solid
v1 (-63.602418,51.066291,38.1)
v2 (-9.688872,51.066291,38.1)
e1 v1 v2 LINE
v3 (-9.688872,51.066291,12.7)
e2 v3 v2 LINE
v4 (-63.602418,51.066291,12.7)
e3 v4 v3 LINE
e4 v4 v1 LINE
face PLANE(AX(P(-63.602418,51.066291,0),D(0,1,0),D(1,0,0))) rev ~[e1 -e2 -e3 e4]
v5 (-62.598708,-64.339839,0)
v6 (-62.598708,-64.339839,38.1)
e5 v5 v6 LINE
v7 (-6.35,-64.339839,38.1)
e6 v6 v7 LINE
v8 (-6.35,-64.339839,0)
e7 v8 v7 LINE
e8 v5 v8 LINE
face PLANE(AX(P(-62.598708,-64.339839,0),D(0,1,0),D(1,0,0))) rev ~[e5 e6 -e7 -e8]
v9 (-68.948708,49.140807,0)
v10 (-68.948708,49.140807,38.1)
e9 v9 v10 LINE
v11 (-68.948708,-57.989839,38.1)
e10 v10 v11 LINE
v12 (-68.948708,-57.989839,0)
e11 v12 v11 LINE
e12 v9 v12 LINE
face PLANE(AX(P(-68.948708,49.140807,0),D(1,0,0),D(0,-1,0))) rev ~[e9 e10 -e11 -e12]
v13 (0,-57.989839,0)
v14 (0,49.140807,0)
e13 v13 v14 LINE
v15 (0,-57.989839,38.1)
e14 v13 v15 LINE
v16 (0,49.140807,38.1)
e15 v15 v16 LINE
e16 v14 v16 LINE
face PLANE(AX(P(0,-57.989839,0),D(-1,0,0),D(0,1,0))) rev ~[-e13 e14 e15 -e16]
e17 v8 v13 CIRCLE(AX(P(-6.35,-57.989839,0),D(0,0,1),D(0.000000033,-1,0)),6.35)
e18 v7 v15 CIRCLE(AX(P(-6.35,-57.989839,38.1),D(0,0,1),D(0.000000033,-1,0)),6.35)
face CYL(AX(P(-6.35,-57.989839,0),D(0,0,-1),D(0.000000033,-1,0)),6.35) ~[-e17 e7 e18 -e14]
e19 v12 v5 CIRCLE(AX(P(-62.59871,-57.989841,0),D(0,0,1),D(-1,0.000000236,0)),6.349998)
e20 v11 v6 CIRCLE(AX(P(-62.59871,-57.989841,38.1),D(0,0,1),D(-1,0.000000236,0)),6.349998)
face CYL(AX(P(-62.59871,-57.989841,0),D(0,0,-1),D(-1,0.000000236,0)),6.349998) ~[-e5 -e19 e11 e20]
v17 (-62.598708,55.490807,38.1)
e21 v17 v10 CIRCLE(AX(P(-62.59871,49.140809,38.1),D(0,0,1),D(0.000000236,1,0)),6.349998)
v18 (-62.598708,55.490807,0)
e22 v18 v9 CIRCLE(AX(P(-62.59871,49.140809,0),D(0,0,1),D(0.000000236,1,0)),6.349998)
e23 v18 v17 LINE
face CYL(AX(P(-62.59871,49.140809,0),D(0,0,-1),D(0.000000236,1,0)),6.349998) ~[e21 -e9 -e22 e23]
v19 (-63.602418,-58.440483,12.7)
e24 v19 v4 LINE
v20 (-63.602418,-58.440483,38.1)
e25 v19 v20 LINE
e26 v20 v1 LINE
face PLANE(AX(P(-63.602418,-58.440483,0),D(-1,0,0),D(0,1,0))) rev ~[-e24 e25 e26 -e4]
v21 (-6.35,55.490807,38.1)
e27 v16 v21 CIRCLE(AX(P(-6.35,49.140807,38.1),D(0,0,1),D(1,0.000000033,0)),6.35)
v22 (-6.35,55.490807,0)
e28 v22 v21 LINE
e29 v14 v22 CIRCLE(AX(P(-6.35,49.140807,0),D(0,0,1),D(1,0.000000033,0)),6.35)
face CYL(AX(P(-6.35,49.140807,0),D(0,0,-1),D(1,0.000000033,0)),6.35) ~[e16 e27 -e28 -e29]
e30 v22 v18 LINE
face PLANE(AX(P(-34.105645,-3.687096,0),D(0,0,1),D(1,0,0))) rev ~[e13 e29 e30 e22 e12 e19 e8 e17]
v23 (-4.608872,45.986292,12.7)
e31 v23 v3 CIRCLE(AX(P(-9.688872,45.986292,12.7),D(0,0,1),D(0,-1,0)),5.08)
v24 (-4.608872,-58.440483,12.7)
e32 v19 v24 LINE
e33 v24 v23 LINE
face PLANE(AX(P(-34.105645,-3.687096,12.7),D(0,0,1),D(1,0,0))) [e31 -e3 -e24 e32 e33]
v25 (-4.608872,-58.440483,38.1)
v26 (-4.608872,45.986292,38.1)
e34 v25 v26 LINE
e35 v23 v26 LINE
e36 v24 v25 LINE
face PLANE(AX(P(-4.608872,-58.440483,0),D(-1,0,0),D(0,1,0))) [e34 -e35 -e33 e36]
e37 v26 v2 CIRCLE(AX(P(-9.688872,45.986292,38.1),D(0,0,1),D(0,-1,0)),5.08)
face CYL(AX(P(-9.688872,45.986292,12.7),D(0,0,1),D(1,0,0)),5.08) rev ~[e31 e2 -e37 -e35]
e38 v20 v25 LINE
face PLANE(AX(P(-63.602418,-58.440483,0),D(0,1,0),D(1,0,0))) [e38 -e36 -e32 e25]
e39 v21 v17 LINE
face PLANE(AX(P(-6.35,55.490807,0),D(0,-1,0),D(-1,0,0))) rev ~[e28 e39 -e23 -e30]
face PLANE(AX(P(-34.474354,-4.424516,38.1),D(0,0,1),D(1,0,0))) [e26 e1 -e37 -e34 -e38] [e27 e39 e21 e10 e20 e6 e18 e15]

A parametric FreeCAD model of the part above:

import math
import FreeCAD as App
import Part
import Sketcher
Q = App.Units.Quantity


def edges_at(feature, points):
    """Names of the edges that pass closest to the given points."""
    edges = feature.Shape.Edges
    near = lambda p: min(range(len(edges)), key=lambda i: edges[i].distToShape(Part.Vertex(*p))[0])
    return sorted({f"Edge{near(p) + 1}" for p in points})

doc = App.newDocument("Part")
body = doc.addObject("PartDesign::Body", "Body")

sketch1 = doc.addObject("Sketcher::SketchObject", "Sketch")
body.addObject(sketch1)
sketch1.AttachmentSupport = (doc.XY_Plane, [""])
sketch1.MapMode = "FlatFace"
sketch1.addGeometry([
    Part.LineSegment(App.Vector(-62.598708, -64.339839, 0), App.Vector(-6.35, -64.339839, 0)),
    Part.ArcOfCircle(Part.Circle(App.Vector(-6.35, -57.989839, 0), App.Vector(0, 0, 1), 6.35), math.radians(-89.999998), math.radians(-0.000002)),
    Part.LineSegment(App.Vector(0, -57.989839, 0), App.Vector(0, 49.140807, 0)),
    Part.ArcOfCircle(Part.Circle(App.Vector(-6.35, 49.140807, 0), App.Vector(0, 0, 1), 6.35), math.radians(0.000002), math.radians(89.999998)),
    Part.LineSegment(App.Vector(-6.35, 55.490807, 0), App.Vector(-62.598708, 55.490807, 0)),
    Part.ArcOfCircle(Part.Circle(App.Vector(-62.598709, 49.140808, 0), App.Vector(0, 0, 1), 6.349998), math.radians(89.999986), math.radians(180.000014)),
    Part.LineSegment(App.Vector(-68.948708, 49.140807, 0), App.Vector(-68.948708, -57.989839, 0)),
    Part.ArcOfCircle(Part.Circle(App.Vector(-62.598709, -57.98984, 0), App.Vector(0, 0, 1), 6.349998), math.radians(179.999986), math.radians(270.000014)),
    Part.LineSegment(App.Vector(-4.608872, -58.440483, 0), App.Vector(-63.602418, -58.440483, 0)),
    Part.LineSegment(App.Vector(-63.602418, -58.440483, 0), App.Vector(-63.602418, 51.066291, 0)),
    Part.LineSegment(App.Vector(-63.602418, 51.066291, 0), App.Vector(-4.608872, 51.066291, 0)),
    Part.LineSegment(App.Vector(-4.608872, 51.066291, 0), App.Vector(-4.608872, -58.440483, 0)),
], False)
sketch1.addConstraint([
    Sketcher.Constraint("Tangent", 0, 2, 1, 1),
    Sketcher.Constraint("Tangent", 1, 2, 2, 1),
    Sketcher.Constraint("Tangent", 2, 2, 3, 1),
    Sketcher.Constraint("Tangent", 3, 2, 4, 1),
    Sketcher.Constraint("Tangent", 4, 2, 5, 1),
    Sketcher.Constraint("Tangent", 5, 2, 6, 1),
    Sketcher.Constraint("Tangent", 6, 2, 7, 1),
    Sketcher.Constraint("Tangent", 7, 2, 0, 1),
    Sketcher.Constraint("Coincident", 8, 2, 9, 1),
    Sketcher.Constraint("Coincident", 9, 2, 10, 1),
    Sketcher.Constraint("Coincident", 10, 2, 11, 1),
    Sketcher.Constraint("Coincident", 11, 2, 8, 1),
    Sketcher.Constraint("Horizontal", 0),
    Sketcher.Constraint("Vertical", 2),
    Sketcher.Constraint("Horizontal", 4),
    Sketcher.Constraint("Vertical", 6),
    Sketcher.Constraint("Horizontal", 8),
    Sketcher.Constraint("Vertical", 9),
    Sketcher.Constraint("Horizontal", 10),
    Sketcher.Constraint("Vertical", 11),
    Sketcher.Constraint("Equal", 1, 3),
    Sketcher.Constraint("Equal", 3, 5),
    Sketcher.Constraint("Equal", 5, 7),
    Sketcher.Constraint("PointOnObject", 1, 2, -2),
    Sketcher.Constraint("Radius", 1, Q("0.25 in")),
    Sketcher.Constraint("DistanceX", 0, 1, 0, 2, 56.248708),
    Sketcher.Constraint("DistanceX", 8, 2, 8, 1, 58.993546),
    Sketcher.Constraint("DistanceY", 2, 1, 2, 2, 107.130646),
    Sketcher.Constraint("DistanceY", 9, 1, 9, 2, 109.506775),
    Sketcher.Constraint("DistanceY", 1, 3, -1, 1, 57.989839),
    Sketcher.Constraint("DistanceY", -1, 1, 9, 2, 51.066291),
    Sketcher.Constraint("DistanceX", 8, 2, 7, 3, 1.003709),
])
pad1 = doc.addObject("PartDesign::Pad", "Pad")
body.addObject(pad1)
pad1.Profile = sketch1
pad1.Length = Q("1.5 in")

sketch2 = doc.addObject("Sketcher::SketchObject", "Sketch001")
body.addObject(sketch2)
sketch2.AttachmentSupport = (doc.XY_Plane, [""])
sketch2.MapMode = "FlatFace"
sketch2.addGeometry([
    Part.LineSegment(App.Vector(-63.602418, 51.066291, 0), App.Vector(-63.602418, -58.440483, 0)),
    Part.LineSegment(App.Vector(-63.602418, -58.440483, 0), App.Vector(-4.608872, -58.440483, 0)),
    Part.LineSegment(App.Vector(-4.608872, -58.440483, 0), App.Vector(-4.608872, 51.066291, 0)),
    Part.LineSegment(App.Vector(-4.608872, 51.066291, 0), App.Vector(-63.602418, 51.066291, 0)),
], False)
sketch2.addConstraint([
    Sketcher.Constraint("Coincident", 0, 2, 1, 1),
    Sketcher.Constraint("Coincident", 1, 2, 2, 1),
    Sketcher.Constraint("Coincident", 2, 2, 3, 1),
    Sketcher.Constraint("Coincident", 3, 2, 0, 1),
    Sketcher.Constraint("Vertical", 0),
    Sketcher.Constraint("Horizontal", 1),
    Sketcher.Constraint("Vertical", 2),
    Sketcher.Constraint("Horizontal", 3),
    Sketcher.Constraint("DistanceX", 1, 1, 1, 2, 58.993546),
    Sketcher.Constraint("DistanceY", 0, 2, 0, 1, 109.506775),
    Sketcher.Constraint("DistanceY", -1, 1, 2, 2, 51.066291),
    Sketcher.Constraint("DistanceX", 0, 2, -1, 1, 63.602418),
])
pad2 = doc.addObject("PartDesign::Pad", "Pad001")
body.addObject(pad2)
pad2.Profile = sketch2
pad2.Length = Q("0.5 in")
doc.recompute()

fillet = doc.addObject("PartDesign::Fillet", "Fillet")
body.addObject(fillet)
fillet.Base = (pad2, edges_at(pad2, [(-4.609, 51.066, 25.4)]))
fillet.Radius = Q("0.2 in")

doc.recompute()
